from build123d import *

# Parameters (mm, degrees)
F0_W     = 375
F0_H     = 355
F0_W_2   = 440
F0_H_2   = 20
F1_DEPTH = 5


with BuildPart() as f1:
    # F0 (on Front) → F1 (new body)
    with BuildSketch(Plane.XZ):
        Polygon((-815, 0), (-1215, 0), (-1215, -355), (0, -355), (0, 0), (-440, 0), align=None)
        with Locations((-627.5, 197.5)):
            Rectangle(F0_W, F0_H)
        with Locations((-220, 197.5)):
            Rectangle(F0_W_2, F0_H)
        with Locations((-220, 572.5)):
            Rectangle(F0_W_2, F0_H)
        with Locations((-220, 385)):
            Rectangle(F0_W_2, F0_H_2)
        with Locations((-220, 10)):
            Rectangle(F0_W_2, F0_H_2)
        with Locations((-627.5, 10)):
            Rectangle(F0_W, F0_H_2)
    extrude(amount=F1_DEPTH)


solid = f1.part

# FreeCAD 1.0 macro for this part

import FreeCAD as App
import Part
import Sketcher


def add_polygon(sketch, points):
    """Adds a closed chain of lines whose ends are joined by coincident constraints."""
    first, n = sketch.GeometryCount, len(points)
    for a, b in zip(points, points[1:] + points[:1]):
        sketch.addGeometry(Part.LineSegment(App.Vector(*a, 0), App.Vector(*b, 0)), False)
    for i in range(n):
        sketch.addConstraint(Sketcher.Constraint("Coincident", first + i, 2, first + (i + 1) % n, 1))

doc = App.newDocument("Part")
body = doc.addObject("PartDesign::Body", "Body")

# Sketch on XZ plane
sketch1 = body.newObject("Sketcher::SketchObject", "Sketch")
sketch1.AttachmentSupport = (doc.getObject("XZ_Plane"), [""])
sketch1.MapMode = "FlatFace"
add_polygon(sketch1, [(-1215, 0), (-1215, -355), (0, -355), (0, 750), (-440, 750), (-440, 375), (-815, 375), (-815, 0)])  # lines 0-7
sketch1.addConstraint([
    Sketcher.Constraint("Vertical", 0),
    Sketcher.Constraint("Horizontal", 1),
    Sketcher.Constraint("Vertical", 2),
    Sketcher.Constraint("Horizontal", 3),
    Sketcher.Constraint("Vertical", 4),
    Sketcher.Constraint("Horizontal", 5),
    Sketcher.Constraint("Vertical", 6),
    Sketcher.Constraint("Horizontal", 7),
    Sketcher.Constraint("PointOnObject", 1, 2, -2),
    Sketcher.Constraint("PointOnObject", 6, 2, -1),
    Sketcher.Constraint("Equal", 5, 4),
    Sketcher.Constraint("Equal", 4, 6),
    Sketcher.Constraint("DistanceX", 1, 1, 1, 2, 1215.0),
    Sketcher.Constraint("DistanceX", 3, 2, 3, 1, 440.0),
    Sketcher.Constraint("DistanceX", 5, 2, 5, 1, 375.0),
    Sketcher.Constraint("DistanceY", 0, 2, 0, 1, 355.0),
])
pad1 = body.newObject("PartDesign::Pad", "Pad")
pad1.Profile = sketch1
pad1.Length = 5

doc.recompute()
